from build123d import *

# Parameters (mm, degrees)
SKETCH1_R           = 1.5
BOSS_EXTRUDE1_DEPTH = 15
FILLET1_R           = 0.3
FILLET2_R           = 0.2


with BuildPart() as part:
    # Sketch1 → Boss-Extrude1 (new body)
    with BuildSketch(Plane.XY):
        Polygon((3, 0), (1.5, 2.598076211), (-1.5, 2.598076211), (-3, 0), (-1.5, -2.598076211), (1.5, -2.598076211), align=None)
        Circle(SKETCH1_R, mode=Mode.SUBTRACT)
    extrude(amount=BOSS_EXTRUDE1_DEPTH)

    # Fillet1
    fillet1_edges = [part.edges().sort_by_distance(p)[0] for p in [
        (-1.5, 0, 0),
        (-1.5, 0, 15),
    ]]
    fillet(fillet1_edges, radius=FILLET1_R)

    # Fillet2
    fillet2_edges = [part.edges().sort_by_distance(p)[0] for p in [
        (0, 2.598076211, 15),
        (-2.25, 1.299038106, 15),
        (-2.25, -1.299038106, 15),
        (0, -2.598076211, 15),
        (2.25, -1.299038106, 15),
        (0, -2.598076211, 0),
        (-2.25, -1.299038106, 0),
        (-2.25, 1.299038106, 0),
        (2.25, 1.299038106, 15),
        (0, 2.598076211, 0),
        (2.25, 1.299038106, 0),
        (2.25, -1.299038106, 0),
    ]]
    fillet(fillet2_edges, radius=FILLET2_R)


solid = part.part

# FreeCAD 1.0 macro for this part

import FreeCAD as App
import Part
import Sketcher
from FreeCAD import Vector
Q = App.Units.Quantity


def edges_at(feature, points):
    """Names of the edges that pass closest to the given points."""
    edges = feature.Shape.Edges
    near = lambda p: min(range(len(edges)), key=lambda i: edges[i].distToShape(Part.Vertex(*p))[0])
    return sorted({f"Edge{near(p) + 1}" for p in points})

doc = App.newDocument("Part")
params = doc.addObject("Spreadsheet::Sheet", "Params")
for row, (alias, value) in enumerate([
    ("sketch1_diameter", "3 mm"),
    ("sketch1_width", "3 mm"),
    ("sketch1_length", "3 mm"),
    ("pad1_length", "15 mm"),
    ("fillet_radius", "0.3 mm"),
    ("fillet2_radius", "0.2 mm"),
], start=1):
    params.set(f"A{row}", alias)
    params.set(f"B{row}", "=" + value)
    params.setAlias(f"B{row}", alias)

body = doc.addObject("PartDesign::Body", "Body")

# Sketch on XY plane
sketch1 = body.newObject("Sketcher::SketchObject", "Sketch")
sketch1.AttachmentSupport = (doc.getObject("XY_Plane"), [""])
sketch1.MapMode = "FlatFace"
sketch1.addGeometry([
    Part.LineSegment(Vector(3, 0, 0), Vector(1.5, 2.598076, 0)),  # 0
    Part.LineSegment(Vector(1.5, 2.598076, 0), Vector(-1.5, 2.598076, 0)),  # 1
    Part.LineSegment(Vector(-1.5, 2.598076, 0), Vector(-3, 0, 0)),  # 2
    Part.LineSegment(Vector(-3, 0, 0), Vector(-1.5, -2.598076, 0)),  # 3
    Part.LineSegment(Vector(-1.5, -2.598076, 0), Vector(1.5, -2.598076, 0)),  # 4
    Part.LineSegment(Vector(1.5, -2.598076, 0), Vector(3, 0, 0)),  # 5
    Part.Circle(Vector(0, 0, 0), Vector(0, 0, 1), 1.5),  # 6
], False)
sketch1.addConstraint([
    Sketcher.Constraint("Coincident", 0, 2, 1, 1),
    Sketcher.Constraint("Coincident", 1, 2, 2, 1),
    Sketcher.Constraint("Coincident", 2, 2, 3, 1),
    Sketcher.Constraint("Coincident", 3, 2, 4, 1),
    Sketcher.Constraint("Coincident", 4, 2, 5, 1),
    Sketcher.Constraint("Coincident", 5, 2, 0, 1),
    Sketcher.Constraint("Horizontal", 1),
    Sketcher.Constraint("Horizontal", 4),
    Sketcher.Constraint("Coincident", 6, 3, -1, 1),
    Sketcher.Constraint("Symmetric", 0, 2, 3, 2, -1, 1),
    Sketcher.Constraint("Symmetric", 2, 2, 5, 2, -1, 1),
    Sketcher.Constraint("PointOnObject", 2, 2, -1),
    Sketcher.Constraint("Parallel", 2, 5),
    Sketcher.Constraint("Vertical", 1, 2, 3, 2),
    Sketcher.Constraint("Diameter", 6, 3.0),
    Sketcher.Constraint("DistanceX", 1, 2, 1, 1, 3.0),
    Sketcher.Constraint("Angle", 0, Q("120 deg")),
    Sketcher.Constraint("Distance", 0, 3.0),
])
sketch1.setExpression("Constraints[14]", "Params.sketch1_diameter")
sketch1.setExpression("Constraints[15]", "Params.sketch1_width")
sketch1.setExpression("Constraints[17]", "Params.sketch1_length")
pad1 = body.newObject("PartDesign::Pad", "Pad")
pad1.Profile = sketch1
pad1.setExpression("Length", "Params.pad1_length")
doc.recompute()

fillet = body.newObject("PartDesign::Fillet", "Fillet")
fillet.Base = (pad1, edges_at(pad1, [(-1.5, 0, 0), (-1.5, 0, 15)]))
fillet.setExpression("Radius", "Params.fillet_radius")
doc.recompute()

fillet2 = body.newObject("PartDesign::Fillet", "Fillet001")
fillet2.Base = (fillet, edges_at(fillet, [
    (0, 2.598, 15),
    (-2.25, 1.299, 15),
    (-2.25, -1.299, 15),
    (0, -2.598, 15),
    (2.25, -1.299, 15),
    (0, -2.598, 0),
    (-2.25, -1.299, 0),
    (-2.25, 1.299, 0),
    (2.25, 1.299, 15),
    (0, 2.598, 0),
    (2.25, 1.299, 0),
    (2.25, -1.299, 0),
]))
fillet2.setExpression("Radius", "Params.fillet2_radius")

doc.recompute()
